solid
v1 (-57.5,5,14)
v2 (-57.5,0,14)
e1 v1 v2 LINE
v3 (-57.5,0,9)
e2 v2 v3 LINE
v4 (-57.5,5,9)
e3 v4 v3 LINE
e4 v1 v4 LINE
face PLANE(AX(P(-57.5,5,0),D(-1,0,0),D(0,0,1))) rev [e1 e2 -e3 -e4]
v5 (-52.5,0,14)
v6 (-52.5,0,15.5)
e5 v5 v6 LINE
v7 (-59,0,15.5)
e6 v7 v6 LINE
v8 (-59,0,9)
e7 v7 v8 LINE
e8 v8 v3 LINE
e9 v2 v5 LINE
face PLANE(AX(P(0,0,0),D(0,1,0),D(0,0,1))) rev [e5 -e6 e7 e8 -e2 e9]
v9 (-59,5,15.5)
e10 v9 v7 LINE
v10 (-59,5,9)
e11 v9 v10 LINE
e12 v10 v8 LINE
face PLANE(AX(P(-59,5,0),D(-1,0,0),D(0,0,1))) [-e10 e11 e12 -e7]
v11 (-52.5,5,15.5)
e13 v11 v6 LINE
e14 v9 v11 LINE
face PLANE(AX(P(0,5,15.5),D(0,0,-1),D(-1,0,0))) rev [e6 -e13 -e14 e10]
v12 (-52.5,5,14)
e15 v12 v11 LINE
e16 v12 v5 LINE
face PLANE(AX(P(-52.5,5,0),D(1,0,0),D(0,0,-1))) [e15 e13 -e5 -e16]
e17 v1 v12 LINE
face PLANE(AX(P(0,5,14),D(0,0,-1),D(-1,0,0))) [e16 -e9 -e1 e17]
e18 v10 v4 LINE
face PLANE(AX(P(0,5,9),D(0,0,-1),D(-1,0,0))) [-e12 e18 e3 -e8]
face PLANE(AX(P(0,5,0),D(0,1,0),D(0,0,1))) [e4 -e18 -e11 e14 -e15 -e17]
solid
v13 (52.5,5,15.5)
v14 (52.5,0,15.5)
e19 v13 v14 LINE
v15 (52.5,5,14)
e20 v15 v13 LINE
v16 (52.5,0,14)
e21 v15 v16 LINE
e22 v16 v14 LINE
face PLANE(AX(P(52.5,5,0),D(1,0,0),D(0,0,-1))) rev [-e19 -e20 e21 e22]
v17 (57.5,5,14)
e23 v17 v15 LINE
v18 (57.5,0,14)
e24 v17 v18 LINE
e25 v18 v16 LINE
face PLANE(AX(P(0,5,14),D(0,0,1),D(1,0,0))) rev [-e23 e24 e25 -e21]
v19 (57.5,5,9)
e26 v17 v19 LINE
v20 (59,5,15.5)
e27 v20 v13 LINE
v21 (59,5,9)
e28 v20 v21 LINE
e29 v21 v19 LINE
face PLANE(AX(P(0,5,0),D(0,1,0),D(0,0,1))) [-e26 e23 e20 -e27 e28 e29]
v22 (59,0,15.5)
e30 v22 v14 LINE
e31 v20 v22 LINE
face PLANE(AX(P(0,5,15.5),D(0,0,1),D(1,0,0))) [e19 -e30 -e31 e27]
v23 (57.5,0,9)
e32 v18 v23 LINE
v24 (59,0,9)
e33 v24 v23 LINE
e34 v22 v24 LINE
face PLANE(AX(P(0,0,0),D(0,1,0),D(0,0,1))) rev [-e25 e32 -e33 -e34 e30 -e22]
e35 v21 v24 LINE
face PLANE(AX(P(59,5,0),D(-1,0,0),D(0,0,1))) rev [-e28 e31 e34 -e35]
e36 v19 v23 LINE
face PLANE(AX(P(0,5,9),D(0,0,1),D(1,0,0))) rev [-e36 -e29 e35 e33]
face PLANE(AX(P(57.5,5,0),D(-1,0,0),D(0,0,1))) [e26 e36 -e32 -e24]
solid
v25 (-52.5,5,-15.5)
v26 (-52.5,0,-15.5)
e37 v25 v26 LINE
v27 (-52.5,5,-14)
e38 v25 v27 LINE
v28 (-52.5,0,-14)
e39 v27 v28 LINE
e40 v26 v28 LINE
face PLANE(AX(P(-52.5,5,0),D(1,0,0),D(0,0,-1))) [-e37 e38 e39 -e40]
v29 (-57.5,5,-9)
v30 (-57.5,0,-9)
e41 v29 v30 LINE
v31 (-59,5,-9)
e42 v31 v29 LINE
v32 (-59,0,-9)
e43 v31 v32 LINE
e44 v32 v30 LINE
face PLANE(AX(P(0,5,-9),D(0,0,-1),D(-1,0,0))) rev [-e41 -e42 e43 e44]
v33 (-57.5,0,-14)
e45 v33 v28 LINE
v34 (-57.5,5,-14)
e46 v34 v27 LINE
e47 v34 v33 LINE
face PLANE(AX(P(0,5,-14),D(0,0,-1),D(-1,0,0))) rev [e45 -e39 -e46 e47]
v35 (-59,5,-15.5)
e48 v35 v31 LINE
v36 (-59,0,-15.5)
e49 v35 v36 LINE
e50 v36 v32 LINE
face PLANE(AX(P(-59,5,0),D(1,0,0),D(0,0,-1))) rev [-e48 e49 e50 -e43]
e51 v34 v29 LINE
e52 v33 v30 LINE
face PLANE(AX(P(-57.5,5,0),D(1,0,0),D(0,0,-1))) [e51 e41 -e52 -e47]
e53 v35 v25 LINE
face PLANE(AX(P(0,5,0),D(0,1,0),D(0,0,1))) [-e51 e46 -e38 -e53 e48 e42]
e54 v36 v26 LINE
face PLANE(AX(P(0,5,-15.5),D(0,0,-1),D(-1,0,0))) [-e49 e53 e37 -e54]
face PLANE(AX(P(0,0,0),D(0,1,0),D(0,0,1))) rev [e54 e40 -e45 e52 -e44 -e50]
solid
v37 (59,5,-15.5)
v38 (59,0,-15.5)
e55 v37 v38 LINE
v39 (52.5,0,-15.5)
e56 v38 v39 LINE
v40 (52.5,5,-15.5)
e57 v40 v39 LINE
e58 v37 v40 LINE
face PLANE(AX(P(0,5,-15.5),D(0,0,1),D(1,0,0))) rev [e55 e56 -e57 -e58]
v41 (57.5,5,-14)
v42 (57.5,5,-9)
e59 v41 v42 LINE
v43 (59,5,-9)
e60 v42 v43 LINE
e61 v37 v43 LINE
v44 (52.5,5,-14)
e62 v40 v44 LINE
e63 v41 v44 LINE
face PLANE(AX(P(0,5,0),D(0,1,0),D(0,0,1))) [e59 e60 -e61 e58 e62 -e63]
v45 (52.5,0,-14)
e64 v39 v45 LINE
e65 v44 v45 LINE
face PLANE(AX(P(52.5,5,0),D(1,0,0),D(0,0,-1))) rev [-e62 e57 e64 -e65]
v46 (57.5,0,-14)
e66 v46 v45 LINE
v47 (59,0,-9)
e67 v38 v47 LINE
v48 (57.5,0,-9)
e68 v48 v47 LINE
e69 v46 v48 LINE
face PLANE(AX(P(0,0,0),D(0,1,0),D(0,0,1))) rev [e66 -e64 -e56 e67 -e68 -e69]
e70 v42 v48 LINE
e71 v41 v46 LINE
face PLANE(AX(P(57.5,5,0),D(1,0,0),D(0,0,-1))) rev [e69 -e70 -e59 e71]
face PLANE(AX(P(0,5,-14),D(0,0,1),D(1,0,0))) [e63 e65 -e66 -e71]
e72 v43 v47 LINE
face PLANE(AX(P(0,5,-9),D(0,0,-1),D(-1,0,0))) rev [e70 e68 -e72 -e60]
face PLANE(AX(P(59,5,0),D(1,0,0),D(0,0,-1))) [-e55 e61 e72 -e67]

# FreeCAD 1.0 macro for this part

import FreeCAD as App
import Part
import Sketcher
from FreeCAD import Vector
Q = App.Units.Quantity

doc = App.newDocument("Part")
body = doc.addObject("PartDesign::Body", "Body")

# Sketch on XZ plane
sketch1 = body.newObject("Sketcher::SketchObject", "Sketch")
sketch1.AttachmentSupport = (doc.getObject("XZ_Plane"), [""])
sketch1.MapMode = "FlatFace"
sketch1.addGeometry([
    Part.LineSegment(Vector(-59, -15.5, 0), Vector(-59, -9, 0)),  # 0
    Part.LineSegment(Vector(-59, -9, 0), Vector(-57.5, -9, 0)),  # 1
    Part.LineSegment(Vector(-57.5, -9, 0), Vector(-57.5, -14, 0)),  # 2
    Part.LineSegment(Vector(-57.5, -14, 0), Vector(-52.5, -14, 0)),  # 3
    Part.LineSegment(Vector(-52.5, -14, 0), Vector(-52.5, -15.5, 0)),  # 4
    Part.LineSegment(Vector(-52.5, -15.5, 0), Vector(-59, -15.5, 0)),  # 5
], False)
sketch1.addConstraint([
    Sketcher.Constraint("Coincident", 0, 2, 1, 1),
    Sketcher.Constraint("Coincident", 1, 2, 2, 1),
    Sketcher.Constraint("Coincident", 2, 2, 3, 1),
    Sketcher.Constraint("Coincident", 3, 2, 4, 1),
    Sketcher.Constraint("Coincident", 4, 2, 5, 1),
    Sketcher.Constraint("Coincident", 5, 2, 0, 1),
    Sketcher.Constraint("Vertical", 0),
    Sketcher.Constraint("Horizontal", 1),
    Sketcher.Constraint("Vertical", 2),
    Sketcher.Constraint("Horizontal", 3),
    Sketcher.Constraint("Vertical", 4),
    Sketcher.Constraint("Horizontal", 5),
    Sketcher.Constraint("Equal", 5, 0),
    Sketcher.Constraint("Equal", 3, 2),
    Sketcher.Constraint("DistanceX", 3, 1, 3, 2, Q("5 mm")),
    Sketcher.Constraint("DistanceX", 1, 1, 1, 2, Q("1.5 mm")),
    Sketcher.Constraint("DistanceX", 0, 2, -1, 1, Q("59 mm")),
    Sketcher.Constraint("DistanceY", 0, 2, -1, 1, Q("9 mm")),
])
pad1 = body.newObject("PartDesign::Pad", "Pad")
pad1.Profile = sketch1
pad1.Length = 5
pad1.Reversed = True
body2 = doc.addObject("PartDesign::Body", "Body001")

# Sketch on XZ plane
sketch2 = body2.newObject("Sketcher::SketchObject", "Sketch001")
sketch2.AttachmentSupport = (doc.getObject("XZ_Plane001"), [""])
sketch2.MapMode = "FlatFace"
sketch2.addGeometry([
    Part.LineSegment(Vector(-52.5, 15.5, 0), Vector(-52.5, 14, 0)),  # 0
    Part.LineSegment(Vector(-52.5, 14, 0), Vector(-57.5, 14, 0)),  # 1
    Part.LineSegment(Vector(-57.5, 14, 0), Vector(-57.5, 9, 0)),  # 2
    Part.LineSegment(Vector(-57.5, 9, 0), Vector(-59, 9, 0)),  # 3
    Part.LineSegment(Vector(-59, 9, 0), Vector(-59, 15.5, 0)),  # 4
    Part.LineSegment(Vector(-59, 15.5, 0), Vector(-52.5, 15.5, 0)),  # 5
], False)
sketch2.addConstraint([
    Sketcher.Constraint("Coincident", 0, 2, 1, 1),
    Sketcher.Constraint("Coincident", 1, 2, 2, 1),
    Sketcher.Constraint("Coincident", 2, 2, 3, 1),
    Sketcher.Constraint("Coincident", 3, 2, 4, 1),
    Sketcher.Constraint("Coincident", 4, 2, 5, 1),
    Sketcher.Constraint("Coincident", 5, 2, 0, 1),
    Sketcher.Constraint("Vertical", 0),
    Sketcher.Constraint("Horizontal", 1),
    Sketcher.Constraint("Vertical", 2),
    Sketcher.Constraint("Horizontal", 3),
    Sketcher.Constraint("Vertical", 4),
    Sketcher.Constraint("Horizontal", 5),
    Sketcher.Constraint("Equal", 3, 0),
    Sketcher.Constraint("Equal", 1, 2),
    Sketcher.Constraint("DistanceX", 1, 2, 1, 1, Q("5 mm")),
    Sketcher.Constraint("DistanceX", 3, 2, 3, 1, Q("1.5 mm")),
    Sketcher.Constraint("DistanceY", -1, 1, 0, 2, Q("14 mm")),
    Sketcher.Constraint("DistanceX", 3, 2, -1, 1, Q("59 mm")),
])
pad2 = body2.newObject("PartDesign::Pad", "Pad001")
pad2.Profile = sketch2
pad2.Length = 5
pad2.Reversed = True
body3 = doc.addObject("PartDesign::Body", "Body002")

# Sketch on XZ plane
sketch3 = body3.newObject("Sketcher::SketchObject", "Sketch002")
sketch3.AttachmentSupport = (doc.getObject("XZ_Plane002"), [""])
sketch3.MapMode = "FlatFace"
sketch3.addGeometry([
    Part.LineSegment(Vector(57.5, -14, 0), Vector(57.5, -9, 0)),  # 0
    Part.LineSegment(Vector(57.5, -9, 0), Vector(59, -9, 0)),  # 1
    Part.LineSegment(Vector(59, -9, 0), Vector(59, -15.5, 0)),  # 2
    Part.LineSegment(Vector(59, -15.5, 0), Vector(52.5, -15.5, 0)),  # 3
    Part.LineSegment(Vector(52.5, -15.5, 0), Vector(52.5, -14, 0)),  # 4
    Part.LineSegment(Vector(52.5, -14, 0), Vector(57.5, -14, 0)),  # 5
], False)
sketch3.addConstraint([
    Sketcher.Constraint("Coincident", 0, 2, 1, 1),
    Sketcher.Constraint("Coincident", 1, 2, 2, 1),
    Sketcher.Constraint("Coincident", 2, 2, 3, 1),
    Sketcher.Constraint("Coincident", 3, 2, 4, 1),
    Sketcher.Constraint("Coincident", 4, 2, 5, 1),
    Sketcher.Constraint("Coincident", 5, 2, 0, 1),
    Sketcher.Constraint("Vertical", 0),
    Sketcher.Constraint("Horizontal", 1),
    Sketcher.Constraint("Vertical", 2),
    Sketcher.Constraint("Horizontal", 3),
    Sketcher.Constraint("Vertical", 4),
    Sketcher.Constraint("Horizontal", 5),
    Sketcher.Constraint("Equal", 5, 0),
    Sketcher.Constraint("Equal", 3, 2),
    Sketcher.Constraint("DistanceX", 5, 1, 5, 2, Q("5 mm")),
    Sketcher.Constraint("DistanceX", 1, 1, 1, 2, Q("1.5 mm")),
    Sketcher.Constraint("DistanceY", 0, 2, -1, 1, Q("9 mm")),
    Sketcher.Constraint("DistanceX", -1, 1, 1, 2, Q("59 mm")),
])
pad3 = body3.newObject("PartDesign::Pad", "Pad002")
pad3.Profile = sketch3
pad3.Length = 5
pad3.Reversed = True
body4 = doc.addObject("PartDesign::Body", "Body003")

# Sketch on XZ plane
sketch4 = body4.newObject("Sketcher::SketchObject", "Sketch003")
sketch4.AttachmentSupport = (doc.getObject("XZ_Plane003"), [""])
sketch4.MapMode = "FlatFace"
sketch4.addGeometry([
    Part.LineSegment(Vector(57.5, 14, 0), Vector(52.5, 14, 0)),  # 0
    Part.LineSegment(Vector(52.5, 14, 0), Vector(52.5, 15.5, 0)),  # 1
    Part.LineSegment(Vector(52.5, 15.5, 0), Vector(59, 15.5, 0)),  # 2
    Part.LineSegment(Vector(59, 15.5, 0), Vector(59, 9, 0)),  # 3
    Part.LineSegment(Vector(59, 9, 0), Vector(57.5, 9, 0)),  # 4
    Part.LineSegment(Vector(57.5, 9, 0), Vector(57.5, 14, 0)),  # 5
], False)
sketch4.addConstraint([
    Sketcher.Constraint("Coincident", 0, 2, 1, 1),
    Sketcher.Constraint("Coincident", 1, 2, 2, 1),
    Sketcher.Constraint("Coincident", 2, 2, 3, 1),
    Sketcher.Constraint("Coincident", 3, 2, 4, 1),
    Sketcher.Constraint("Coincident", 4, 2, 5, 1),
    Sketcher.Constraint("Coincident", 5, 2, 0, 1),
    Sketcher.Constraint("Horizontal", 0),
    Sketcher.Constraint("Vertical", 1),
    Sketcher.Constraint("Horizontal", 2),
    Sketcher.Constraint("Vertical", 3),
    Sketcher.Constraint("Horizontal", 4),
    Sketcher.Constraint("Vertical", 5),
    Sketcher.Constraint("Equal", 4, 1),
    Sketcher.Constraint("Equal", 2, 3),
    Sketcher.Constraint("DistanceX", 0, 2, 0, 1, Q("5 mm")),
    Sketcher.Constraint("DistanceX", 2, 1, 2, 2, Q("6.5 mm")),
    Sketcher.Constraint("DistanceY", -1, 1, 0, 2, Q("14 mm")),
    Sketcher.Constraint("DistanceX", -1, 1, 2, 2, Q("59 mm")),
])
pad4 = body4.newObject("PartDesign::Pad", "Pad003")
pad4.Profile = sketch4
pad4.Length = 5
pad4.Reversed = True

doc.recompute()
